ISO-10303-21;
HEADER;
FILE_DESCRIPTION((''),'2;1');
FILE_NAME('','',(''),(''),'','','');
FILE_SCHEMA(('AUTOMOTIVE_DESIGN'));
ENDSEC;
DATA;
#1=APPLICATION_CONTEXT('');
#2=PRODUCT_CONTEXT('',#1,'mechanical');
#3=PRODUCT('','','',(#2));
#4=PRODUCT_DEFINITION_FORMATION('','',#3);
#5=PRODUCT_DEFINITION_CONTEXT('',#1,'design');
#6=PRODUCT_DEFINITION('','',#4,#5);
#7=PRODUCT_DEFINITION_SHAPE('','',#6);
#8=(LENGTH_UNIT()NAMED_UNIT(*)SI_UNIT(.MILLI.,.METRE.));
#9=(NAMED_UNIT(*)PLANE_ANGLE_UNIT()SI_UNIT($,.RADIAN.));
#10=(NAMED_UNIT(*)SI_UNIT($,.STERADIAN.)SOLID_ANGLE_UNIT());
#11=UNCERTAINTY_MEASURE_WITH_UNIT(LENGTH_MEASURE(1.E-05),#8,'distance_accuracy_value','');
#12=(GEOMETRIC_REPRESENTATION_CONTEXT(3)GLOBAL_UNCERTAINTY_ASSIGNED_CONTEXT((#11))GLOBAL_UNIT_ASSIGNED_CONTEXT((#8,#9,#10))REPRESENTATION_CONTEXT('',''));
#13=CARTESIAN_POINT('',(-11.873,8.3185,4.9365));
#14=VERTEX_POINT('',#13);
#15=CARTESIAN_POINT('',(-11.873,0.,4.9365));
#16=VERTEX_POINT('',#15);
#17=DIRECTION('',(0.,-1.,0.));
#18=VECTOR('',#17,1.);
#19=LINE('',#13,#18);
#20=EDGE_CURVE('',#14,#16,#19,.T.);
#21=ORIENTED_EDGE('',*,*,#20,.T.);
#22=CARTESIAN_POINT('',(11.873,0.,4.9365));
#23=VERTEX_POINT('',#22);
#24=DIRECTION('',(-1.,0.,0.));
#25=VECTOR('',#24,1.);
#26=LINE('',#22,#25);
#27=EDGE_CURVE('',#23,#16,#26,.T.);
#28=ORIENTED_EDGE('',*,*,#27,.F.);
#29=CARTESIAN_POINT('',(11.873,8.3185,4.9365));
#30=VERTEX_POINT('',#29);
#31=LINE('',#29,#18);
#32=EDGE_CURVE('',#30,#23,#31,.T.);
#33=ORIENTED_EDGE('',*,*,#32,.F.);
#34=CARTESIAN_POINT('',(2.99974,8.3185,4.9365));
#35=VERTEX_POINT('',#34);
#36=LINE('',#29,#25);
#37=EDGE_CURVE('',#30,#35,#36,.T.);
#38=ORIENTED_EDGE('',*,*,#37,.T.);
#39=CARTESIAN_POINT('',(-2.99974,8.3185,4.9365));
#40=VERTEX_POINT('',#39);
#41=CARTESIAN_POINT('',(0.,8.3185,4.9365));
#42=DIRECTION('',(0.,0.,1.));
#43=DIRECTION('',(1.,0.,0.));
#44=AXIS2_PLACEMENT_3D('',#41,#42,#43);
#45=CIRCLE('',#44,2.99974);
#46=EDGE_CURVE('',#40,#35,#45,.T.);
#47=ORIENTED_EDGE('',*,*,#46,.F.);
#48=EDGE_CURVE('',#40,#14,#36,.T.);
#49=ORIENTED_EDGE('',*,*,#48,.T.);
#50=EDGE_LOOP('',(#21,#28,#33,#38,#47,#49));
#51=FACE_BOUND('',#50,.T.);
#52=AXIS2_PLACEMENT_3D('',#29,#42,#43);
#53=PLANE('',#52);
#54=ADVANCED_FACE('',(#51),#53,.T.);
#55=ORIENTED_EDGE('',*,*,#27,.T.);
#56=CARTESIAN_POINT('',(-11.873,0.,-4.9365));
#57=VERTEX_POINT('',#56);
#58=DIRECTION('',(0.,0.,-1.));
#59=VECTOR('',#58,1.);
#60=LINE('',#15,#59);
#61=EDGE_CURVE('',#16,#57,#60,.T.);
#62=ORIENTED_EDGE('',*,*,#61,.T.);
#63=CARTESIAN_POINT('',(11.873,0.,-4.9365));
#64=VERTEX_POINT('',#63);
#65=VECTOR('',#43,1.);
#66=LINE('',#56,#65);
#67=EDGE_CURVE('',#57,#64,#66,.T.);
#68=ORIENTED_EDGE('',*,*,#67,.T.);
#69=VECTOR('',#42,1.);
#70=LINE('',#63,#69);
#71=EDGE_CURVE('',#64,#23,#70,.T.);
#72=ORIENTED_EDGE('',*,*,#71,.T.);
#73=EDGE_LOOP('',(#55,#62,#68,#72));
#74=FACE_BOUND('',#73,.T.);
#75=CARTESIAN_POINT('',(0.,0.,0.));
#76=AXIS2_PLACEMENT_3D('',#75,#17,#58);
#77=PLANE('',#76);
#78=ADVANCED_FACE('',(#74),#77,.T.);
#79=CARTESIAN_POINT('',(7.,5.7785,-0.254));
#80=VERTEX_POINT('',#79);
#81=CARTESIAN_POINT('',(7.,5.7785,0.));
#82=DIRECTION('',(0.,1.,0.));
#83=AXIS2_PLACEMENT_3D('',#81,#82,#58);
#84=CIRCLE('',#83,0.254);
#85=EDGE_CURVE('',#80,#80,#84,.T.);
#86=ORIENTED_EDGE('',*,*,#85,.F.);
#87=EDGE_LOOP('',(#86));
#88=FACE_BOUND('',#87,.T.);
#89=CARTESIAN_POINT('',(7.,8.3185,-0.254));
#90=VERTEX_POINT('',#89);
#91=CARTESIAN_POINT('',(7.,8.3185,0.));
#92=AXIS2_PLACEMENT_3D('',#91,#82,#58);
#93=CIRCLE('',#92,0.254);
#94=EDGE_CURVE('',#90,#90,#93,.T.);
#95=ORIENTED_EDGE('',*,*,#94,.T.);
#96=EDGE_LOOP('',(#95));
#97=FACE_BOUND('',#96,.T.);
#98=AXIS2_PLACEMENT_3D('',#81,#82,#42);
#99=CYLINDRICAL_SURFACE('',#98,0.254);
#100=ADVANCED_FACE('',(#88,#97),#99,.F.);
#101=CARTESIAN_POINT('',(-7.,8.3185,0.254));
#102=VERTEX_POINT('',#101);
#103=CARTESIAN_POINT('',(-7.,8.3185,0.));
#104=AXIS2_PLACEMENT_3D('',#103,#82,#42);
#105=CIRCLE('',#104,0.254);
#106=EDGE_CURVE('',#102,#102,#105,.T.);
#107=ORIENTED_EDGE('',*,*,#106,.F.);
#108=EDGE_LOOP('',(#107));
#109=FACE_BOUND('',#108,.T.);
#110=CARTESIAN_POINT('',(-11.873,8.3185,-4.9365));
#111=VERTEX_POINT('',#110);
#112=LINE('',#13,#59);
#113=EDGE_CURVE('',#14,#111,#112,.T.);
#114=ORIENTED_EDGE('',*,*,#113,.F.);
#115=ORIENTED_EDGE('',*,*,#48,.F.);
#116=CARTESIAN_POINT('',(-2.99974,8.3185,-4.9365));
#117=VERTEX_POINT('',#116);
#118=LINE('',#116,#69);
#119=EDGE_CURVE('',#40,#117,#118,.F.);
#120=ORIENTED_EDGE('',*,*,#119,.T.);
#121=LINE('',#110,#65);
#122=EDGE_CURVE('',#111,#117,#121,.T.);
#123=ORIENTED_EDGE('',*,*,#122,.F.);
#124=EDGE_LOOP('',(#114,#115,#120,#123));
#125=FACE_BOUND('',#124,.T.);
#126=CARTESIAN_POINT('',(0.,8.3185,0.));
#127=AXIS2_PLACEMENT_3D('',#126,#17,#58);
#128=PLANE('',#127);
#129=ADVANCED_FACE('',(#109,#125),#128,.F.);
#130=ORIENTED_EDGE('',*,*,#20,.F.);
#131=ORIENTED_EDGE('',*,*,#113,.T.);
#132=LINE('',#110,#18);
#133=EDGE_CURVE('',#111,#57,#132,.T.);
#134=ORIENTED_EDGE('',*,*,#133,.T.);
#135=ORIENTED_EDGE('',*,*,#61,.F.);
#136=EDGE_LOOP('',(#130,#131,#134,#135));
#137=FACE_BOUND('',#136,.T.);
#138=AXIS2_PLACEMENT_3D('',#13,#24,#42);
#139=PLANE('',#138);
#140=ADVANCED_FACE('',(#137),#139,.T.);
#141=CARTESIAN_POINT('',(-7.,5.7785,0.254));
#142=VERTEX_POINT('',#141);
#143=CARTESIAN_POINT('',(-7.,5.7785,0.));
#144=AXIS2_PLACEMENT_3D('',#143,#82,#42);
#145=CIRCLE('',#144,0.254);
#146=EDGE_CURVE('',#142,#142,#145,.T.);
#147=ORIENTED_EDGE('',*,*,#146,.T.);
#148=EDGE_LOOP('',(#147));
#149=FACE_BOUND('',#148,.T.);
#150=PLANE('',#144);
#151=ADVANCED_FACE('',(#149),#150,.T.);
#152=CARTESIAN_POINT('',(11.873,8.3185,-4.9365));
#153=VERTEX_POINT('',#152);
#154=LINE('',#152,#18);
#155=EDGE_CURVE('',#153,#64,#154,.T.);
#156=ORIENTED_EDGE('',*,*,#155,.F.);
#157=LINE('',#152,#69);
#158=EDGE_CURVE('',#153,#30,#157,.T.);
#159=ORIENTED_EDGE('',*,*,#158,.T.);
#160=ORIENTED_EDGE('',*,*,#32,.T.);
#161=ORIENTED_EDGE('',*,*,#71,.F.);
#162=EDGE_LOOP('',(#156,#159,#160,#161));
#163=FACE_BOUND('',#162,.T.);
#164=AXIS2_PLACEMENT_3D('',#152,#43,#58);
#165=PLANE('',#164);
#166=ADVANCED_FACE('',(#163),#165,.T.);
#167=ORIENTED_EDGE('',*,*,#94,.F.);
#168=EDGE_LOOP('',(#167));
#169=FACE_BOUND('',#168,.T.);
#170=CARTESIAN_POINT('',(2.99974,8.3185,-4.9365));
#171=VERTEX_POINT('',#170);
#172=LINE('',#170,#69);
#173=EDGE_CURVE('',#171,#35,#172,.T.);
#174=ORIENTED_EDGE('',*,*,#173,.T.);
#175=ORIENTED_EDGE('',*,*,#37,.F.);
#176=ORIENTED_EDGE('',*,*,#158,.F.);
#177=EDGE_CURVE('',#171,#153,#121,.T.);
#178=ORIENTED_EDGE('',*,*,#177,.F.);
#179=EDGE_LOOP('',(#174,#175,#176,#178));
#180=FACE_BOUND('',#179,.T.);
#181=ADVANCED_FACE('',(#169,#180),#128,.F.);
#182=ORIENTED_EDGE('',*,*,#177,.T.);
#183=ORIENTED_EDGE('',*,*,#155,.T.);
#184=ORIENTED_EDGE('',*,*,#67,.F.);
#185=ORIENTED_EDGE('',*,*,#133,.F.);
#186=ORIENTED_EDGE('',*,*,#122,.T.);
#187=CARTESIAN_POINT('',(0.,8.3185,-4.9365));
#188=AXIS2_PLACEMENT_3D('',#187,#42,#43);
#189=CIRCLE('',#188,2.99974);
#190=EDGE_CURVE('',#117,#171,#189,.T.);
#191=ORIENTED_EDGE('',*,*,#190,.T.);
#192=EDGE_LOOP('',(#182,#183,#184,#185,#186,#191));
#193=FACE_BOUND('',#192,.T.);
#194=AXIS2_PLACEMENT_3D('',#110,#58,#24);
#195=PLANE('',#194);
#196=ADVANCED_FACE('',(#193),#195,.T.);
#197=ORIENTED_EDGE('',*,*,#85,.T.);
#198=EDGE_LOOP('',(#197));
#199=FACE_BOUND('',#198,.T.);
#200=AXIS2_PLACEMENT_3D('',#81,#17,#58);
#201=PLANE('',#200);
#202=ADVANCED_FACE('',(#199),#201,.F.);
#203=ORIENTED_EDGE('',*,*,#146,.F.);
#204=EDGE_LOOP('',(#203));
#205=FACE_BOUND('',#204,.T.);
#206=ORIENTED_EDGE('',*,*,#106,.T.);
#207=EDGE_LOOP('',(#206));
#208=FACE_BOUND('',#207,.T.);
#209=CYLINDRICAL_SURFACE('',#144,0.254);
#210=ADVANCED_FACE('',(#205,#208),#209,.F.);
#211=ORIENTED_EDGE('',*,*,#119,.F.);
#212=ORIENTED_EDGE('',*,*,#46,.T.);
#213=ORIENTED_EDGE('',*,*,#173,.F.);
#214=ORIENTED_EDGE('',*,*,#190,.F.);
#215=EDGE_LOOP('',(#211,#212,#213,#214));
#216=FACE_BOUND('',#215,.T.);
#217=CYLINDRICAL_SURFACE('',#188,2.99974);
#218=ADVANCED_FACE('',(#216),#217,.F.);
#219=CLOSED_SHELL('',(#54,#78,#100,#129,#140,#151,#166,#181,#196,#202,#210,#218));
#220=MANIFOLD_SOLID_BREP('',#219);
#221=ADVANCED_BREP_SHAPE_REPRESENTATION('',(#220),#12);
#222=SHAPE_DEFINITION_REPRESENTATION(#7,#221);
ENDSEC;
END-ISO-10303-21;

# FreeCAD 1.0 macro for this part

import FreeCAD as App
import Part
import Sketcher
from FreeCAD import Vector
Q = App.Units.Quantity

doc = App.newDocument("Part")
body = doc.addObject("PartDesign::Body", "Body")

sketch1 = body.newObject("Sketcher::SketchObject", "Sketch")
sketch1.AttachmentSupport = (doc.getObject("XZ_Plane"), [""])
sketch1.MapMode = "FlatFace"
sketch1.addGeometry([
    Part.LineSegment(Vector(-11.873, -4.9365, 0), Vector(-11.873, 4.9365, 0)),
    Part.LineSegment(Vector(-11.873, 4.9365, 0), Vector(11.873, 4.9365, 0)),
    Part.LineSegment(Vector(11.873, 4.9365, 0), Vector(11.873, -4.9365, 0)),
    Part.LineSegment(Vector(11.873, -4.9365, 0), Vector(-11.873, -4.9365, 0)),
], False)
sketch1.addConstraint([
    Sketcher.Constraint("Coincident", 0, 2, 1, 1),
    Sketcher.Constraint("Coincident", 1, 2, 2, 1),
    Sketcher.Constraint("Coincident", 2, 2, 3, 1),
    Sketcher.Constraint("Coincident", 3, 2, 0, 1),
    Sketcher.Constraint("Vertical", 0),
    Sketcher.Constraint("Horizontal", 1),
    Sketcher.Constraint("Vertical", 2),
    Sketcher.Constraint("Horizontal", 3),
    Sketcher.Constraint("Symmetric", 0, 2, 2, 2, -1, 1),
    Sketcher.Constraint("DistanceX", 1, 1, 1, 2, 23.746),
    Sketcher.Constraint("DistanceY", 0, 1, 0, 2, 9.873),
])
pad1 = body.newObject("PartDesign::Pad", "Pad")
pad1.Profile = sketch1
pad1.Length = Q("0.3275 in")
pad1.Reversed = True

sketch2 = body.newObject("Sketcher::SketchObject", "Sketch001")
sketch2.AttachmentSupport = (doc.getObject("XY_Plane"), [""])
sketch2.MapMode = "FlatFace"
sketch2.AttachmentOffset = App.Placement(Vector(0, 0, 4.9365), App.Rotation())
sketch2.addGeometry(Part.Circle(Vector(0, 8.3185, 0), Vector(0, 0, 1), 2.99974), False)
sketch2.addConstraint([
    Sketcher.Constraint("PointOnObject", 0, 3, -2),
    Sketcher.Constraint("Diameter", 0, Q("0.2362 in")),
    Sketcher.Constraint("DistanceY", -1, 1, 0, 3, Q("0.3275 in")),
])
pocket1 = body.newObject("PartDesign::Pocket", "Pocket")
pocket1.Profile = sketch2
pocket1.Type = "ThroughAll"

sketch3 = body.newObject("Sketcher::SketchObject", "Sketch002")
sketch3.AttachmentSupport = (doc.getObject("XZ_Plane"), [""])
sketch3.MapMode = "FlatFace"
sketch3.AttachmentOffset = App.Placement(Vector(0, 0, -0.3275 * 25.4), App.Rotation())
sketch3.addGeometry([
    Part.Circle(Vector(-7, 0, 0), Vector(0, 0, 1), 0.254),
    Part.Circle(Vector(7, 0, 0), Vector(0, 0, 1), 0.254),
], False)
sketch3.addConstraint([
    Sketcher.Constraint("Equal", 0, 1),
    Sketcher.Constraint("Symmetric", 0, 3, 1, 3, -1, 1),
    Sketcher.Constraint("PointOnObject", 0, 3, -1),
    Sketcher.Constraint("Diameter", 0, Q("0.02 in")),
    Sketcher.Constraint("DistanceX", 0, 3, -1, 1, 7.0),
])
pocket2 = body.newObject("PartDesign::Pocket", "Pocket001")
pocket2.Profile = sketch3
pocket2.Length = Q("0.1 in")
pocket2.Reversed = True

doc.recompute()
